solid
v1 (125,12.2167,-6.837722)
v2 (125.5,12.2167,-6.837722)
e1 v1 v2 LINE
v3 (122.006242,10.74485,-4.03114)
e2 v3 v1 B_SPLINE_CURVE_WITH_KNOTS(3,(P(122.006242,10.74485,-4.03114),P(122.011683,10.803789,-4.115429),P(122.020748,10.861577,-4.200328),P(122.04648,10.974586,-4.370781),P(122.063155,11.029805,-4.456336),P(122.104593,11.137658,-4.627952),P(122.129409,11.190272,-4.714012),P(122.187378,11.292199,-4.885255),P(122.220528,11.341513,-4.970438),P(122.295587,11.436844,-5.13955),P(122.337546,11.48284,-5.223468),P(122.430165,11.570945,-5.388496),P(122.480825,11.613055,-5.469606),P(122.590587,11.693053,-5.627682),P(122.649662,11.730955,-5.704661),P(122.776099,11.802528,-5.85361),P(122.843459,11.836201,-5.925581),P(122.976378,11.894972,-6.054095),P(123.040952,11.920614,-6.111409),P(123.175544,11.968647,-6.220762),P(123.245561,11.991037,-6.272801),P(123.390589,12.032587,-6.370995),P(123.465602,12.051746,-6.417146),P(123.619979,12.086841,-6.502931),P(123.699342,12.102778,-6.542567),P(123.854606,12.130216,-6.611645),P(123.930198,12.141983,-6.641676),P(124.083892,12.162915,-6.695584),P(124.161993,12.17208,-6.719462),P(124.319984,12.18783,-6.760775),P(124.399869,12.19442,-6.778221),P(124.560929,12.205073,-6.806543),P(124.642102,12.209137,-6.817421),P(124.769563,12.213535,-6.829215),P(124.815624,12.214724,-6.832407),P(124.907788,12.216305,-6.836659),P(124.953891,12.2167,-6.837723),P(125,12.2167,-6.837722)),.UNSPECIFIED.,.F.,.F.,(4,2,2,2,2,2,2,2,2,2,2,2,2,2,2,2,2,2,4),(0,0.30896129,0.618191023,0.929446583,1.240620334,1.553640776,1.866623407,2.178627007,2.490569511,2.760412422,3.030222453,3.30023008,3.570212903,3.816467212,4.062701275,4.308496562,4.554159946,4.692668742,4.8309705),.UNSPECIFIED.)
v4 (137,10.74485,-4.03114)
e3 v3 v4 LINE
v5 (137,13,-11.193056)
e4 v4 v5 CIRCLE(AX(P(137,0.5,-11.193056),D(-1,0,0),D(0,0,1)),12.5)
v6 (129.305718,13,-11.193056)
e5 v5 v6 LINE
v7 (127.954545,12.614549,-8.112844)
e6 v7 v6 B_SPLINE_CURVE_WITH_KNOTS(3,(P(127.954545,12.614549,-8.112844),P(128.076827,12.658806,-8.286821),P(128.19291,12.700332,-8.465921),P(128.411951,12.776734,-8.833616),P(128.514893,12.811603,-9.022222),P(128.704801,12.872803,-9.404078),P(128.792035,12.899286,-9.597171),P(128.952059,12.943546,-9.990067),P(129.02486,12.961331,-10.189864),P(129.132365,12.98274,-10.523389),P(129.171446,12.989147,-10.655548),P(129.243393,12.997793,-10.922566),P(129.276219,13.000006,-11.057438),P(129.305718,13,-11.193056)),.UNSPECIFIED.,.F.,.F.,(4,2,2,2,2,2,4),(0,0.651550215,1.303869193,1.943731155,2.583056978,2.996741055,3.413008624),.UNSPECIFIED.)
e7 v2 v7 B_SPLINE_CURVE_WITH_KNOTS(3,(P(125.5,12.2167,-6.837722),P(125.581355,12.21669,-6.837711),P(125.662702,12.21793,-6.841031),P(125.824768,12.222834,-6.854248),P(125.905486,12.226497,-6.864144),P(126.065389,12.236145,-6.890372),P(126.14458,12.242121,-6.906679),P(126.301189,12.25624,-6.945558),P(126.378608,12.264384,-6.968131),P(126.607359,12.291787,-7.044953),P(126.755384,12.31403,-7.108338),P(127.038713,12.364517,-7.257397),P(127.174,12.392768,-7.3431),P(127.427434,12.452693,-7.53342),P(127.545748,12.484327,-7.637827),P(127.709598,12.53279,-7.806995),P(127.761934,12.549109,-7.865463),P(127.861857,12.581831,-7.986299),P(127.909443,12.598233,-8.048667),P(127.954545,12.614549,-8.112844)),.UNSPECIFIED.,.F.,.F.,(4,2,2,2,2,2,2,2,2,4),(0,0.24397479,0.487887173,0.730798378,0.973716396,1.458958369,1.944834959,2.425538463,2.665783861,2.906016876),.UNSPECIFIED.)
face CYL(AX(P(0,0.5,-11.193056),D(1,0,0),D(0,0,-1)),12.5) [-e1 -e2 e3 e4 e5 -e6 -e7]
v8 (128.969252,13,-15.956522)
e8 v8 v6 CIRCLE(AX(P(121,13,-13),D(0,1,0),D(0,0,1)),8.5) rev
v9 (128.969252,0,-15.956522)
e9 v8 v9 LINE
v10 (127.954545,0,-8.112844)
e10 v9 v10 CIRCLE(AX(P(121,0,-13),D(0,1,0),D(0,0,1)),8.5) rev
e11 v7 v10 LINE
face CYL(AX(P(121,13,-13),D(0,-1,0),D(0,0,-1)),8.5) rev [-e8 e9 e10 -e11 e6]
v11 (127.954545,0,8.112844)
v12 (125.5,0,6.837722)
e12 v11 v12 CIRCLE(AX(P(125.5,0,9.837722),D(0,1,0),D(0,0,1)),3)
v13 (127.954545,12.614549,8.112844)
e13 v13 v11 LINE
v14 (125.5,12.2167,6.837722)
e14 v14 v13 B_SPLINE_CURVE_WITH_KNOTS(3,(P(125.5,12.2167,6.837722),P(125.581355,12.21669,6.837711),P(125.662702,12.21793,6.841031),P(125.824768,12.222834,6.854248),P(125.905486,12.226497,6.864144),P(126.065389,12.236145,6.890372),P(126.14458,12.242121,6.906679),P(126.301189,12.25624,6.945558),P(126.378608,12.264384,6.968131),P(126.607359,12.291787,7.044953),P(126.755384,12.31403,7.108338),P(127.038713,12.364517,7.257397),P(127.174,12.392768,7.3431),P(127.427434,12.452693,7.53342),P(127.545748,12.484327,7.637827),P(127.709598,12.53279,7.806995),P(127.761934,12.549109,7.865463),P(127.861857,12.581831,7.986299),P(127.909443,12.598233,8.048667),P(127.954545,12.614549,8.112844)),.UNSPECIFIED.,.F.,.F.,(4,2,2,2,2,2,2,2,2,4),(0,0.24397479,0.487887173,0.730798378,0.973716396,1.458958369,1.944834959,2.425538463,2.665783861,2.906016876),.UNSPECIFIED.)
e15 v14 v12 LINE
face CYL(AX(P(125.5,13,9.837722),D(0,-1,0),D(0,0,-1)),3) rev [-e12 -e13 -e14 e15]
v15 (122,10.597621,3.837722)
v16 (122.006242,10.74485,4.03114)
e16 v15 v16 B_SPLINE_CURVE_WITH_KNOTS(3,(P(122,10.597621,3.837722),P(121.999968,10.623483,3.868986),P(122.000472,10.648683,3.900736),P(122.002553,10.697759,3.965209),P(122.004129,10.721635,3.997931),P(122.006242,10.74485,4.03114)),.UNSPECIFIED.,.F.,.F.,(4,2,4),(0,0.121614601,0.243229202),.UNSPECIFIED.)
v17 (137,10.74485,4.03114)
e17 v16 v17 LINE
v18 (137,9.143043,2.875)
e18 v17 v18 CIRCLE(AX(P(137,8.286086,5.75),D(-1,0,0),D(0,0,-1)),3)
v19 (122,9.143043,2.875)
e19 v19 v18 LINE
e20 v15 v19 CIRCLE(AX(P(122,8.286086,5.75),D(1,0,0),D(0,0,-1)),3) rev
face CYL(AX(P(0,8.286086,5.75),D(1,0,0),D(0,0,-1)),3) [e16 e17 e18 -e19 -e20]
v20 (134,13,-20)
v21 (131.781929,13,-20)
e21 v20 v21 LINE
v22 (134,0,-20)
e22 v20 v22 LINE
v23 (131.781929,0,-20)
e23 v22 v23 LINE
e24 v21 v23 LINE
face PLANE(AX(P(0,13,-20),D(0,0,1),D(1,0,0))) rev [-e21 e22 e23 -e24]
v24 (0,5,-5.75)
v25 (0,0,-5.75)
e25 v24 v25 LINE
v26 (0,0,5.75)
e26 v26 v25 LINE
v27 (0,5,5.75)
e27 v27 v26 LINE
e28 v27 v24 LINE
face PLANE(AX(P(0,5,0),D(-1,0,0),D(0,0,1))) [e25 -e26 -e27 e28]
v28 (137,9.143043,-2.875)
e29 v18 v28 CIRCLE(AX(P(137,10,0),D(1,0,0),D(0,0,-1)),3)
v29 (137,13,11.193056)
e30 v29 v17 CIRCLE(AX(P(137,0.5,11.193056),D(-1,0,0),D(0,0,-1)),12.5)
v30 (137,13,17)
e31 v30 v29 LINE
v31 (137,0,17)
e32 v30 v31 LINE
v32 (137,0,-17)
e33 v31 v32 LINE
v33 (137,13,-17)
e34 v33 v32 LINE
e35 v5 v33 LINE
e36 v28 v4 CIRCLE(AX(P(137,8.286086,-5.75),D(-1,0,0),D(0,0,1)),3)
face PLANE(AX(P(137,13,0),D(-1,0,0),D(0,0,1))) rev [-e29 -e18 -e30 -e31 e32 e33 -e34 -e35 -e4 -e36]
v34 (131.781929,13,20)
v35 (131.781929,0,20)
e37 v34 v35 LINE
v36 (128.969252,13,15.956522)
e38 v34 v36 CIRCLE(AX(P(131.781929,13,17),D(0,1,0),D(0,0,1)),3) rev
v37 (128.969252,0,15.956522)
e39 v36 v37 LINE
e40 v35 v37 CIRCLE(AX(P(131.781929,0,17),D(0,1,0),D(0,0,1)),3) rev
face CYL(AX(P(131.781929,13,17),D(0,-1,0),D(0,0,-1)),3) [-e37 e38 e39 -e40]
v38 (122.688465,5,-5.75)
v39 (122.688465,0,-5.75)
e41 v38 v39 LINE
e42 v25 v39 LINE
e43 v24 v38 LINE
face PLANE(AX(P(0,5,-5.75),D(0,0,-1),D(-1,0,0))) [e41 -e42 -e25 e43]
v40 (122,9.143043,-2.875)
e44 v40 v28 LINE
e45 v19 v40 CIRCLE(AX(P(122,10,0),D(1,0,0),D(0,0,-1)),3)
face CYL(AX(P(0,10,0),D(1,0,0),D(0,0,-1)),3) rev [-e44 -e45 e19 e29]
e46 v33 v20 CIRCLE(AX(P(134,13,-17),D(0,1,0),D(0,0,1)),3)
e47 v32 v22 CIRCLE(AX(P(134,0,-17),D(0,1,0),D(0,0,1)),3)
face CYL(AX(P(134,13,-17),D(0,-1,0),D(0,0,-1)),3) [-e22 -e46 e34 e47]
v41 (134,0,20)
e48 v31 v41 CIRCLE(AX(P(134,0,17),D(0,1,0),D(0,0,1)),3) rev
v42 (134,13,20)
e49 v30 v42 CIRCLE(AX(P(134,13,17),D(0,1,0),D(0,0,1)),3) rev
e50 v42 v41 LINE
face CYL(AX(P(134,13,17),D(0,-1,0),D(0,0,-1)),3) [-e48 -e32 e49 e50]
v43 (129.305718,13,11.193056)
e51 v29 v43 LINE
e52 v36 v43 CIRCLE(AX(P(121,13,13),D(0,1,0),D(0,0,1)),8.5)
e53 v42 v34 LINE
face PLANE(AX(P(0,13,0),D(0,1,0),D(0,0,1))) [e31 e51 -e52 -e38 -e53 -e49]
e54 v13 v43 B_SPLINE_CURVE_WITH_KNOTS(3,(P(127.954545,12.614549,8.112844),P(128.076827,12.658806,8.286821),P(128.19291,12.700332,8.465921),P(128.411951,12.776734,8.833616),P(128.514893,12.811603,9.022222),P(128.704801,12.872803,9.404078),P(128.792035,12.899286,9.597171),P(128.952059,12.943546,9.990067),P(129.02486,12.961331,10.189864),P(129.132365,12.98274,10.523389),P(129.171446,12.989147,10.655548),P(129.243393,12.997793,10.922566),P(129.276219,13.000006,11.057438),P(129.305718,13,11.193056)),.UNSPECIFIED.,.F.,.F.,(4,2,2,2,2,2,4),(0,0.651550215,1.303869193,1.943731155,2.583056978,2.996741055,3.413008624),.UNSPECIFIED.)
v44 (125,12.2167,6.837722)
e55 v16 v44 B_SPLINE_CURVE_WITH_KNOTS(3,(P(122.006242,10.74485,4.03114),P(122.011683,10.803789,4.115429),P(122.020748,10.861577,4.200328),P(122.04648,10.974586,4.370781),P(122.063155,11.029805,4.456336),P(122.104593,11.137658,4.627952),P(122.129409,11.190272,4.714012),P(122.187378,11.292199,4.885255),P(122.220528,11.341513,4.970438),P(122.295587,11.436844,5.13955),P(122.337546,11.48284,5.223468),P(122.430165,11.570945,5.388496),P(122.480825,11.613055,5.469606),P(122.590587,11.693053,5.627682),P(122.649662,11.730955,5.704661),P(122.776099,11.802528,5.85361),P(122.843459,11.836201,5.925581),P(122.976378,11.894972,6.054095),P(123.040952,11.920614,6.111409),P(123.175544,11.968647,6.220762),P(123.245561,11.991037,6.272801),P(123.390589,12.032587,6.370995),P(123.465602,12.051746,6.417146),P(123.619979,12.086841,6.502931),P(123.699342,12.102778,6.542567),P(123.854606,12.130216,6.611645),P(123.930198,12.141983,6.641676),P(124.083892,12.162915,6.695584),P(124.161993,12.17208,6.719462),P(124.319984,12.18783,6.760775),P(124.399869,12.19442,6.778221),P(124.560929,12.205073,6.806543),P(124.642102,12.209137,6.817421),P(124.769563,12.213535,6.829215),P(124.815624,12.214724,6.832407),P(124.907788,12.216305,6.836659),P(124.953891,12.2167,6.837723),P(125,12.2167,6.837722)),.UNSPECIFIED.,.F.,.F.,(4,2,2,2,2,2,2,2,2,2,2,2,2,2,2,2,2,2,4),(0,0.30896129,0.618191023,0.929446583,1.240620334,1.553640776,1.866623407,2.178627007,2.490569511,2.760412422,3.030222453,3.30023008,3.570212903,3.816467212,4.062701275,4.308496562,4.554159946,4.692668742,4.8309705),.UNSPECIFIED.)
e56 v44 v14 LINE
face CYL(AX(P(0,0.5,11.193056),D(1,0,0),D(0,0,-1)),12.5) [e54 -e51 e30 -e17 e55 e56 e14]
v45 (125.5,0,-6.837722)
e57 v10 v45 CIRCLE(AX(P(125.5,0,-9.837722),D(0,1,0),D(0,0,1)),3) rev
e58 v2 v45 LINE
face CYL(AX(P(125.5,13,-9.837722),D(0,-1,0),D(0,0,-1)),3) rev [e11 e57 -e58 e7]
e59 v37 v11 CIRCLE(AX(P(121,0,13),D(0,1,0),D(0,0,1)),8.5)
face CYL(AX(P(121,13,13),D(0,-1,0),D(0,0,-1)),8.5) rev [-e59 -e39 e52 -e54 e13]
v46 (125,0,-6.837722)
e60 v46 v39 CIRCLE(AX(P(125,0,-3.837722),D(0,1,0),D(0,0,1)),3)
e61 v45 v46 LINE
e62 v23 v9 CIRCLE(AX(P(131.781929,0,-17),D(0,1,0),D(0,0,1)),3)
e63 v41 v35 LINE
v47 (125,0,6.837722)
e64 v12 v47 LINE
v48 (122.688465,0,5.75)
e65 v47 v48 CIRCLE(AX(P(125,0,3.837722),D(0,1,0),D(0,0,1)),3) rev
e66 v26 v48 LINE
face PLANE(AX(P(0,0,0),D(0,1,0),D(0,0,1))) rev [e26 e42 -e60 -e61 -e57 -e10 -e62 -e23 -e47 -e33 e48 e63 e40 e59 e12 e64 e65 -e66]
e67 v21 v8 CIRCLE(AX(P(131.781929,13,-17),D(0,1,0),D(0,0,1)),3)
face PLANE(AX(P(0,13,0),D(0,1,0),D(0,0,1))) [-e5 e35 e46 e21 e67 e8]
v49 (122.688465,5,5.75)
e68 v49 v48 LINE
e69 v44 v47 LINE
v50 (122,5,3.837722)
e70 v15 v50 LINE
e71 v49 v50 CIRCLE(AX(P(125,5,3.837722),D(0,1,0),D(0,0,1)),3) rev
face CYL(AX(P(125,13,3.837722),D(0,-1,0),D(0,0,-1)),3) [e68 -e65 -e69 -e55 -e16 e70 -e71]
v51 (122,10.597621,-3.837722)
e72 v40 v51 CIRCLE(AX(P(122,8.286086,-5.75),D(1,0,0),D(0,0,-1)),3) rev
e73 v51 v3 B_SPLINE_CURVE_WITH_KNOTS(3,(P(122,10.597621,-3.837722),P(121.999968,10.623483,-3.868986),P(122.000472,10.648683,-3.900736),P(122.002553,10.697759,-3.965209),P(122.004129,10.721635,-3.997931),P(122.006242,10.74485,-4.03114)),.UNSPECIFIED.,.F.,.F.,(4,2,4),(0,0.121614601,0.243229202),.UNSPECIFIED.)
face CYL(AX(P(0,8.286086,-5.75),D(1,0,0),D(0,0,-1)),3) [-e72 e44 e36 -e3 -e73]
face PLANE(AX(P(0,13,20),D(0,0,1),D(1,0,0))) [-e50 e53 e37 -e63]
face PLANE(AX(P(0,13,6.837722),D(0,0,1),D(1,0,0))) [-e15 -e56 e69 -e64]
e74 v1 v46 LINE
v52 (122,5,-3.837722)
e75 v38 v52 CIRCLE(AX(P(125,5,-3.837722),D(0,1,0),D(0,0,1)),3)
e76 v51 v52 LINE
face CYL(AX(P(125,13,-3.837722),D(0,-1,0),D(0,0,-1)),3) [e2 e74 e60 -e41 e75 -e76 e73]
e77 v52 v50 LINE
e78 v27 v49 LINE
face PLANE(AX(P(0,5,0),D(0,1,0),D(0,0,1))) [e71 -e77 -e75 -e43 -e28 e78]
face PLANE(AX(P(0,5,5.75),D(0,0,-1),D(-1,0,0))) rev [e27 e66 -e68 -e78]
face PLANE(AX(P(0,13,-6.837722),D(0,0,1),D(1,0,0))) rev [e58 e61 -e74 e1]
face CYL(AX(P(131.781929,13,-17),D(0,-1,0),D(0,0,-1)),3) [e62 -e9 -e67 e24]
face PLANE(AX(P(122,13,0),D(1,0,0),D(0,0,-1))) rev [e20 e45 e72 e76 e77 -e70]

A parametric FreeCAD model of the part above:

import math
import FreeCAD as App
import Part
import Sketcher
from FreeCAD import Vector
Q = App.Units.Quantity

doc = App.newDocument("Part")
params = doc.addObject("Spreadsheet::Sheet", "Params")
for row, (alias, value) in enumerate([
    ("sketch1_radius", "3 mm"),
    ("sketch1_radius2", "8.5 mm"),
    ("sketch1_height", "34 mm"),
    ("sketch1_width", "0.5 mm"),
    ("pad1_length", "13 mm"),
    ("sketch2_radius", "3 mm"),
    ("sketch2_height", "11.5 mm"),
    ("pad2_length", "5 mm"),
    ("sketch3_radius", "3 mm"),
    ("sketch3_radius2", "12.5 mm"),
], start=1):
    params.set(f"A{row}", alias)
    params.set(f"B{row}", "=" + value)
    params.setAlias(f"B{row}", alias)

body = doc.addObject("PartDesign::Body", "Body")

# Sketch on XZ plane
sketch1 = body.newObject("Sketcher::SketchObject", "Sketch")
sketch1.AttachmentSupport = (doc.getObject("XZ_Plane"), [""])
sketch1.MapMode = "FlatFace"
sketch1.addGeometry([
    Part.ArcOfCircle(Part.Circle(Vector(125, 3.8, 0), Vector(0, 0, 1), 3), math.radians(140), math.radians(180)),  # 0
    Part.ArcOfCircle(Part.Circle(Vector(125, 3.8, 0), Vector(0, 0, 1), 3), math.radians(90), math.radians(140)),  # 1
    Part.LineSegment(Vector(125, 6.8, 0), Vector(125.5, 6.8, 0)),  # 2
    Part.ArcOfCircle(Part.Circle(Vector(125.5, 9.8, 0), Vector(0, 0, 1), 3), math.radians(-90), math.radians(-35)),  # 3
    Part.ArcOfCircle(Part.Circle(Vector(121, 13, 0), Vector(0, 0, 1), 8.5), math.radians(-35), math.radians(20)),  # 4
    Part.ArcOfCircle(Part.Circle(Vector(131.8, 17, 0), Vector(0, 0, 1), 3), math.radians(90), math.radians(200)),  # 5
    Part.LineSegment(Vector(131.8, 20, 0), Vector(134, 20, 0)),  # 6
    Part.ArcOfCircle(Part.Circle(Vector(134, 17, 0), Vector(0, 0, 1), 3), math.radians(0), math.radians(90)),  # 7
    Part.LineSegment(Vector(137, 17, 0), Vector(137, -17, 0)),  # 8
    Part.ArcOfCircle(Part.Circle(Vector(134, -17, 0), Vector(0, 0, 1), 3), math.radians(-90), math.radians(0)),  # 9
    Part.LineSegment(Vector(134, -20, 0), Vector(131.8, -20, 0)),  # 10
    Part.ArcOfCircle(Part.Circle(Vector(131.8, -17, 0), Vector(0, 0, 1), 3), math.radians(160), math.radians(270)),  # 11
    Part.ArcOfCircle(Part.Circle(Vector(121, -13, 0), Vector(0, 0, 1), 8.5), math.radians(-20), math.radians(35)),  # 12
    Part.ArcOfCircle(Part.Circle(Vector(125.5, -9.8, 0), Vector(0, 0, 1), 3), math.radians(35), math.radians(90)),  # 13
    Part.LineSegment(Vector(125.5, -6.8, 0), Vector(125, -6.8, 0)),  # 14
    Part.ArcOfCircle(Part.Circle(Vector(125, -3.8, 0), Vector(0, 0, 1), 3), math.radians(-140), math.radians(-90)),  # 15
    Part.ArcOfCircle(Part.Circle(Vector(125, -3.8, 0), Vector(0, 0, 1), 3), math.radians(180), math.radians(220)),  # 16
    Part.LineSegment(Vector(122, -3.8, 0), Vector(122, 3.8, 0)),  # 17
], False)
sketch1.addConstraint([
    Sketcher.Constraint("Tangent", 0, 1, 1, 2),
    Sketcher.Constraint("Tangent", 1, 1, 2, 1),
    Sketcher.Constraint("Tangent", 2, 2, 3, 1),
    Sketcher.Constraint("Tangent", 3, 2, 4, 1),
    Sketcher.Constraint("Tangent", 4, 2, 5, 2),
    Sketcher.Constraint("Tangent", 5, 1, 6, 1),
    Sketcher.Constraint("Tangent", 6, 2, 7, 2),
    Sketcher.Constraint("Tangent", 7, 1, 8, 1),
    Sketcher.Constraint("Tangent", 8, 2, 9, 2),
    Sketcher.Constraint("Tangent", 9, 1, 10, 1),
    Sketcher.Constraint("Tangent", 10, 2, 11, 2),
    Sketcher.Constraint("Tangent", 11, 1, 12, 1),
    Sketcher.Constraint("Tangent", 12, 2, 13, 1),
    Sketcher.Constraint("Tangent", 13, 2, 14, 1),
    Sketcher.Constraint("Tangent", 14, 2, 15, 2),
    Sketcher.Constraint("Tangent", 15, 1, 16, 2),
    Sketcher.Constraint("Tangent", 16, 1, 17, 1),
    Sketcher.Constraint("Tangent", 17, 2, 0, 2),
    Sketcher.Constraint("Horizontal", 2),
    Sketcher.Constraint("Horizontal", 6),
    Sketcher.Constraint("Vertical", 8),
    Sketcher.Constraint("Horizontal", 10),
    Sketcher.Constraint("Horizontal", 14),
    Sketcher.Constraint("Vertical", 17),
    Sketcher.Constraint("Equal", 0, 1),
    Sketcher.Constraint("Equal", 1, 3),
    Sketcher.Constraint("Equal", 3, 5),
    Sketcher.Constraint("Equal", 5, 7),
    Sketcher.Constraint("Equal", 7, 9),
    Sketcher.Constraint("Equal", 9, 11),
    Sketcher.Constraint("Equal", 4, 12),
    Sketcher.Constraint("Equal", 11, 13),
    Sketcher.Constraint("Equal", 13, 15),
    Sketcher.Constraint("Equal", 15, 16),
    Sketcher.Constraint("Symmetric", 5, 3, 11, 3, -1),
    Sketcher.Constraint("Symmetric", 3, 3, 13, 3, -1),
    Sketcher.Constraint("Vertical", 0, 1, 15, 1),
    Sketcher.Constraint("Radius", 0, Q("3 mm")),
    Sketcher.Constraint("Radius", 4, Q("8.5 mm")),
    Sketcher.Constraint("DistanceY", 8, 2, 8, 1, Q("34 mm")),
    Sketcher.Constraint("DistanceX", 2, 1, 2, 2, Q("0.5 mm")),
    Sketcher.Constraint("DistanceX", -1, 1, 0, 3, Q("125 mm")),
    Sketcher.Constraint("DistanceX", -1, 1, 4, 3, Q("121 mm")),
    Sketcher.Constraint("DistanceY", -1, 1, 4, 3, Q("13 mm")),
    Sketcher.Constraint("DistanceX", -1, 1, 7, 3, Q("134 mm")),
    Sketcher.Constraint("DistanceY", -1, 1, 0, 1, Q("5.75 mm")),
])
sketch1.setExpression("Constraints[37]", "Params.sketch1_radius")
sketch1.setExpression("Constraints[38]", "Params.sketch1_radius2")
sketch1.setExpression("Constraints[39]", "Params.sketch1_height")
sketch1.setExpression("Constraints[40]", "Params.sketch1_width")
pad1 = body.newObject("PartDesign::Pad", "Pad")
pad1.Profile = sketch1
pad1.setExpression("Length", "Params.pad1_length")
pad1.Reversed = True

# Sketch on XZ plane
sketch2 = body.newObject("Sketcher::SketchObject", "Sketch001")
sketch2.AttachmentSupport = (doc.getObject("XZ_Plane"), [""])
sketch2.MapMode = "FlatFace"
sketch2.addGeometry([
    Part.LineSegment(Vector(0, -5.8, 0), Vector(0, 5.8, 0)),  # 0
    Part.LineSegment(Vector(0, 5.8, 0), Vector(122.7, 5.8, 0)),  # 1
    Part.ArcOfCircle(Part.Circle(Vector(125, 3.8, 0), Vector(0, 0, 1), 3), math.radians(140), math.radians(180)),  # 2
    Part.LineSegment(Vector(122, 3.8, 0), Vector(122, -3.8, 0)),  # 3
    Part.ArcOfCircle(Part.Circle(Vector(125, -3.8, 0), Vector(0, 0, 1), 3), math.radians(180), math.radians(220)),  # 4
    Part.LineSegment(Vector(122.7, -5.8, 0), Vector(0, -5.8, 0)),  # 5
], False)
sketch2.addConstraint([
    Sketcher.Constraint("Coincident", 0, 2, 1, 1),
    Sketcher.Constraint("Coincident", 1, 2, 2, 1),
    Sketcher.Constraint("Tangent", 2, 2, 3, 1),
    Sketcher.Constraint("Tangent", 3, 2, 4, 1),
    Sketcher.Constraint("Coincident", 4, 2, 5, 1),
    Sketcher.Constraint("Coincident", 5, 2, 0, 1),
    Sketcher.Constraint("Vertical", 0),
    Sketcher.Constraint("Horizontal", 1),
    Sketcher.Constraint("Vertical", 3),
    Sketcher.Constraint("Horizontal", 5),
    Sketcher.Constraint("Equal", 2, 4),
    Sketcher.Constraint("Symmetric", 0, 2, 5, 2, -1, 1),
    Sketcher.Constraint("Vertical", 1, 2, 4, 2),
    Sketcher.Constraint("Radius", 2, Q("3 mm")),
    Sketcher.Constraint("DistanceY", 0, 1, 0, 2, Q("11.5 mm")),
    Sketcher.Constraint("DistanceX", -1, 1, 2, 3, Q("125 mm")),
    Sketcher.Constraint("DistanceX", 1, 1, 1, 2, Q("122.688465 mm")),
])
sketch2.setExpression("Constraints[13]", "Params.sketch2_radius")
sketch2.setExpression("Constraints[14]", "Params.sketch2_height")
pad2 = body.newObject("PartDesign::Pad", "Pad001")
pad2.Profile = sketch2
pad2.setExpression("Length", "Params.pad2_length")
pad2.Reversed = True

# Sketch on YZ plane
sketch3 = body.newObject("Sketcher::SketchObject", "Sketch002")
sketch3.AttachmentSupport = (doc.getObject("YZ_Plane"), [""])
sketch3.MapMode = "FlatFace"
sketch3.AttachmentOffset = App.Placement(Vector(0, 0, 137), App.Rotation())
sketch3.addGeometry([
    Part.LineSegment(Vector(13, -11.2, 0), Vector(13, 11.2, 0)),  # 0
    Part.ArcOfCircle(Part.Circle(Vector(0.5, 11.2, 0), Vector(0, 0, 1), 12.5), math.radians(-35), math.radians(0)),  # 1
    Part.ArcOfCircle(Part.Circle(Vector(8.3, 5.7, 0), Vector(0, 0, 1), 3), math.radians(-73), math.radians(-35)),  # 2
    Part.ArcOfCircle(Part.Circle(Vector(10, 0, 0), Vector(0, 0, 1), 3), math.radians(107), math.radians(253)),  # 3
    Part.ArcOfCircle(Part.Circle(Vector(8.3, -5.7, 0), Vector(0, 0, 1), 3), math.radians(35), math.radians(73)),  # 4
    Part.ArcOfCircle(Part.Circle(Vector(0.5, -11.2, 0), Vector(0, 0, 1), 12.5), math.radians(0), math.radians(35)),  # 5
], False)
sketch3.addConstraint([
    Sketcher.Constraint("Tangent", 0, 2, 1, 2),
    Sketcher.Constraint("Tangent", 1, 1, 2, 2),
    Sketcher.Constraint("Tangent", 2, 1, 3, 1),
    Sketcher.Constraint("Tangent", 3, 2, 4, 2),
    Sketcher.Constraint("Tangent", 4, 1, 5, 2),
    Sketcher.Constraint("Tangent", 5, 1, 0, 1),
    Sketcher.Constraint("Vertical", 0),
    Sketcher.Constraint("Equal", 2, 3),
    Sketcher.Constraint("Equal", 3, 4),
    Sketcher.Constraint("Equal", 1, 5),
    Sketcher.Constraint("Symmetric", 2, 3, 4, 3, -1),
    Sketcher.Constraint("Radius", 2, Q("3 mm")),
    Sketcher.Constraint("Radius", 1, Q("12.5 mm")),
    Sketcher.Constraint("DistanceX", -1, 1, 3, 3, Q("10 mm")),
    Sketcher.Constraint("DistanceX", -1, 1, 0, 2, Q("13 mm")),
    Sketcher.Constraint("DistanceY", 4, 3, 2, 3, Q("11.5 mm")),
])
sketch3.setExpression("Constraints[11]", "Params.sketch3_radius")
sketch3.setExpression("Constraints[12]", "Params.sketch3_radius2")
pocket1 = body.newObject("PartDesign::Pocket", "Pocket")
pocket1.Profile = sketch3
pocket1.Type = "ThroughAll"

doc.recompute()
